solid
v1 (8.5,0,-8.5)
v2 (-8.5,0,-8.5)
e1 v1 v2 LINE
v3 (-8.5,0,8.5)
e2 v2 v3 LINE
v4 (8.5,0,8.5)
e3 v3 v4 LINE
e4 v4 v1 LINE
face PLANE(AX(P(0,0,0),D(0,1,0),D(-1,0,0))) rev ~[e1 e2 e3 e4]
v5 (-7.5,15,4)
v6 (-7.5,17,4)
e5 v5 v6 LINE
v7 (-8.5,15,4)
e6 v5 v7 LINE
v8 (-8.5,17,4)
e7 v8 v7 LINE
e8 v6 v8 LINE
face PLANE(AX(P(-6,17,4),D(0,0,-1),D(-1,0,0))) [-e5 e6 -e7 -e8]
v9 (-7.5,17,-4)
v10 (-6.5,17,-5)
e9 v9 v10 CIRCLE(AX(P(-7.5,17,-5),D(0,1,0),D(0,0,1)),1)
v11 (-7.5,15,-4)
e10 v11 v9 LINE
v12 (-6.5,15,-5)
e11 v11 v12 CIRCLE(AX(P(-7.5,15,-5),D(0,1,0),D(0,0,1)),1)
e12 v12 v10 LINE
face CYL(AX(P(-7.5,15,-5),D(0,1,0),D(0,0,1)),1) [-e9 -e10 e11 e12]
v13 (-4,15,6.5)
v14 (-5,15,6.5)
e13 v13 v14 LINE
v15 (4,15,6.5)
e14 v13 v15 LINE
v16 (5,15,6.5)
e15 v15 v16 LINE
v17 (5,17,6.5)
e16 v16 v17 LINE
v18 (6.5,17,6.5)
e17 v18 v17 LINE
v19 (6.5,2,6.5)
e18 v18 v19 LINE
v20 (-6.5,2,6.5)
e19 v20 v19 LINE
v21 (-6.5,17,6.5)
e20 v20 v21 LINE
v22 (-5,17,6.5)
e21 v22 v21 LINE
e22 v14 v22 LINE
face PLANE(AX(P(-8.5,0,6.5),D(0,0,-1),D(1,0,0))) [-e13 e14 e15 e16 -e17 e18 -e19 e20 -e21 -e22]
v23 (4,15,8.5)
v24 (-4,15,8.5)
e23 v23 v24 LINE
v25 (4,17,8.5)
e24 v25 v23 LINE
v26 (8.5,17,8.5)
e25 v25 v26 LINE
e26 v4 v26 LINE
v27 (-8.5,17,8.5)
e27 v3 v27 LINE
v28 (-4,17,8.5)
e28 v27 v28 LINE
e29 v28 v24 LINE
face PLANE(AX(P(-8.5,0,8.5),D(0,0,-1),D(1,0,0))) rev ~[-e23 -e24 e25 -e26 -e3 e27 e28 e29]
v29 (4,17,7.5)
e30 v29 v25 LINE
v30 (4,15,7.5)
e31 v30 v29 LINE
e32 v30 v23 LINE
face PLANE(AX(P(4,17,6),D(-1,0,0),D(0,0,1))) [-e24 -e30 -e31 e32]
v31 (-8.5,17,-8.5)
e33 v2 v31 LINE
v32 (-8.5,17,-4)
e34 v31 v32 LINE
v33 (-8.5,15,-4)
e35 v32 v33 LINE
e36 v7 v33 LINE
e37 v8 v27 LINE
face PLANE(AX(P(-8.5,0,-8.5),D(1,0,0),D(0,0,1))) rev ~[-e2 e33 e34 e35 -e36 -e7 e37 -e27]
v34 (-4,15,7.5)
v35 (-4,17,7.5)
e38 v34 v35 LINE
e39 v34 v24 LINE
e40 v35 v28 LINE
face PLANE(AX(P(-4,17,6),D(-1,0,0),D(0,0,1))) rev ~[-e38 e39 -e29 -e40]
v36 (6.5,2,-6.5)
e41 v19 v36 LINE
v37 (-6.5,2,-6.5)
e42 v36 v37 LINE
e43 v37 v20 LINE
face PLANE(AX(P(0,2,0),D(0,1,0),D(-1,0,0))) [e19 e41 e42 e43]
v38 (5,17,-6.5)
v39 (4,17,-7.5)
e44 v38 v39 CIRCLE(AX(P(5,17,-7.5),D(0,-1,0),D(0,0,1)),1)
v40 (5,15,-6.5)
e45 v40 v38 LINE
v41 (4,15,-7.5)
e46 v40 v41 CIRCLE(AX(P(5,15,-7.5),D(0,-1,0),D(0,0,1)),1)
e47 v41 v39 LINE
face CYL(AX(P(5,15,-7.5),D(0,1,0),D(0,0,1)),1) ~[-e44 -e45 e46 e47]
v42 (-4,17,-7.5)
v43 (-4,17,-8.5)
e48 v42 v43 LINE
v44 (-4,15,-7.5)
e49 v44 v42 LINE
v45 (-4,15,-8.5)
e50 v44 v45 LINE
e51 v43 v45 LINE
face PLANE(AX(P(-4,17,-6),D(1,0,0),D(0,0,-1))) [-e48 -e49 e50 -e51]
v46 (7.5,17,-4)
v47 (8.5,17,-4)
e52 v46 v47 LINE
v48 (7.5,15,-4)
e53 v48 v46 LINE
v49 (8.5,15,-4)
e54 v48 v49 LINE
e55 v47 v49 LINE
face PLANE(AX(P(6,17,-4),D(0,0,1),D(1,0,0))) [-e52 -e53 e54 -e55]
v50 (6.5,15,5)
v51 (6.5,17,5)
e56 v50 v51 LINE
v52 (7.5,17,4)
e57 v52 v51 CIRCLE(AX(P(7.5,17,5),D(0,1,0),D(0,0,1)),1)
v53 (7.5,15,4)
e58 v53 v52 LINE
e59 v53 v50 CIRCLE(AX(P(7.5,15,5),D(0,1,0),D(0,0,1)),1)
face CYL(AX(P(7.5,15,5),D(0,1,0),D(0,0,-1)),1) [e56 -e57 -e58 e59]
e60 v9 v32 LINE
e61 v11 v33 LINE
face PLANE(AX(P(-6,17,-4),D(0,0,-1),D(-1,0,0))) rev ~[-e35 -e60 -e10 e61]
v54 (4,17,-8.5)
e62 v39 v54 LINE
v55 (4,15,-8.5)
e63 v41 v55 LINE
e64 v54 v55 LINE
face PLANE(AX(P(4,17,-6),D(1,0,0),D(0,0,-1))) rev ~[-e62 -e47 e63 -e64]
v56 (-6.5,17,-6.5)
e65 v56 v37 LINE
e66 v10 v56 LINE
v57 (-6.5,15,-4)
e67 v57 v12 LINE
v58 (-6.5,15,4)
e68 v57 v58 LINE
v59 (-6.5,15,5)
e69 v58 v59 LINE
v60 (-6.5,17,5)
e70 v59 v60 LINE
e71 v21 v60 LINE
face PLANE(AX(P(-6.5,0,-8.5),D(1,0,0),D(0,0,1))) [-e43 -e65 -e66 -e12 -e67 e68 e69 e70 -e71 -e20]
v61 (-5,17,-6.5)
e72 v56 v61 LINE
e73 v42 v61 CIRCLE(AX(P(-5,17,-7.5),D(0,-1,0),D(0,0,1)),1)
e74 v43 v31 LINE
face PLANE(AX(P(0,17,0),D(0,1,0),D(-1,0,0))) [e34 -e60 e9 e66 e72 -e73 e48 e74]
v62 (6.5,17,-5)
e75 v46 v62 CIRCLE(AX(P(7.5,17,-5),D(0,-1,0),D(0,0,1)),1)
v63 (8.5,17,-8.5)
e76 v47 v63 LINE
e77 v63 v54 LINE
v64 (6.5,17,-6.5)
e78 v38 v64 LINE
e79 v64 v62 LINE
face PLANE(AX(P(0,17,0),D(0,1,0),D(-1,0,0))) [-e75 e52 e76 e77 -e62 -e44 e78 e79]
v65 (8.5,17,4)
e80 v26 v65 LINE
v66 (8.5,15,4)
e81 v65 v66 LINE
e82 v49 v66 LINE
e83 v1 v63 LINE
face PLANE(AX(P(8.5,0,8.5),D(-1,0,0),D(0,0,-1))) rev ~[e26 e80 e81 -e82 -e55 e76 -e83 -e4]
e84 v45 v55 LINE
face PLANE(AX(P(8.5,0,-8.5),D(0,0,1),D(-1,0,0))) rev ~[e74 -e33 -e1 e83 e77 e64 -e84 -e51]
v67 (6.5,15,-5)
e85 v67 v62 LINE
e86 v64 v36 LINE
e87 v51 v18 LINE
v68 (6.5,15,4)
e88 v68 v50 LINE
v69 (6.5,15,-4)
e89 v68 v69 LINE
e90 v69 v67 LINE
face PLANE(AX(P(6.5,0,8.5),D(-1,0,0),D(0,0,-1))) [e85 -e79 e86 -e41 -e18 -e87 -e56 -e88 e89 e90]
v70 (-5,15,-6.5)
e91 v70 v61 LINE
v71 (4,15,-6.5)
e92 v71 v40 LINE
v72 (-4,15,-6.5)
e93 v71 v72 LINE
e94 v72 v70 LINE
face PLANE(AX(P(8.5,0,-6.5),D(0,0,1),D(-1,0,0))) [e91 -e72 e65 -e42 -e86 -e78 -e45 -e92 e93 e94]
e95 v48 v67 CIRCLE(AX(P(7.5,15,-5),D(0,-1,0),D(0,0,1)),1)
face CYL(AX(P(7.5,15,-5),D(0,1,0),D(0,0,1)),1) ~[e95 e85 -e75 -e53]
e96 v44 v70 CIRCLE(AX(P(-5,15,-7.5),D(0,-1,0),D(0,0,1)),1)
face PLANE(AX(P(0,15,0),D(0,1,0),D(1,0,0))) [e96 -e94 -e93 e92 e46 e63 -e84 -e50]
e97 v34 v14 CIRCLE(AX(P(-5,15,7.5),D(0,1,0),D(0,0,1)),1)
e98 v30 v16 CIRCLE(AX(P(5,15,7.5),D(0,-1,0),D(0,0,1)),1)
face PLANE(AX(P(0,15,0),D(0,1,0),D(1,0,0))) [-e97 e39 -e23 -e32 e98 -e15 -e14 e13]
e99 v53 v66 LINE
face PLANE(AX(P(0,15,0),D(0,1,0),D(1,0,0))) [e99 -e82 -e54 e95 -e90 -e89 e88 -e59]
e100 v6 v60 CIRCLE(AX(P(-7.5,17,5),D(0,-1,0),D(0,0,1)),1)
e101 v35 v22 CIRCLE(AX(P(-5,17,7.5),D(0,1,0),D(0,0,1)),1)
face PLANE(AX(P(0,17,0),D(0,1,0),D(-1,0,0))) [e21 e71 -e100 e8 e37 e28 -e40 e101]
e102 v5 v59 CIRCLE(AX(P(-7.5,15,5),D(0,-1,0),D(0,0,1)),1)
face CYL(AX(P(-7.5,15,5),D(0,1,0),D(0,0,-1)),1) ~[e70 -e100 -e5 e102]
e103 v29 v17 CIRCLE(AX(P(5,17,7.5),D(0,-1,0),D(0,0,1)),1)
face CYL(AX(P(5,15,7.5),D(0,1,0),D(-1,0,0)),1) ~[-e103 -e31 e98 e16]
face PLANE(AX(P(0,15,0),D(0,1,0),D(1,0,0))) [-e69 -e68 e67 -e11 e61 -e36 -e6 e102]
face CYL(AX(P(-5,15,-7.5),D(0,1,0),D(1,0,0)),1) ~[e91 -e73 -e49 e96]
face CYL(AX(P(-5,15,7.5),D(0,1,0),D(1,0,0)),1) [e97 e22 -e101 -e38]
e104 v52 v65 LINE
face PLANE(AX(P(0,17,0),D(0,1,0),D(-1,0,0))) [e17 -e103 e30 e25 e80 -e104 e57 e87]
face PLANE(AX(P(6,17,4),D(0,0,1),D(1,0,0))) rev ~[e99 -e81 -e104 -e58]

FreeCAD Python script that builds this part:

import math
import FreeCAD as App
import Part
import Sketcher

V = App.Vector


def edges_at(feature, points):
    """Names of the edges that pass closest to the given points."""
    edges = feature.Shape.Edges
    near = lambda p: min(range(len(edges)), key=lambda i: edges[i].distToShape(Part.Vertex(*p))[0])
    return sorted({f"Edge{near(p) + 1}" for p in points})


def faces_at(feature, points):
    """Names of the faces that lie closest to the given points."""
    faces = feature.Shape.Faces
    near = lambda p: min(range(len(faces)), key=lambda i: faces[i].distToShape(Part.Vertex(*p))[0])
    return sorted({f"Face{near(p) + 1}" for p in points})

doc = App.newDocument("Part")
body = doc.addObject("PartDesign::Body", "Body")

# Sketch on XZ plane
sketch1 = body.newObject("Sketcher::SketchObject", "Sketch")
sketch1.AttachmentSupport = (doc.getObject("XZ_Plane"), [""])
sketch1.MapMode = "FlatFace"
sketch1.addGeometry([
    Part.LineSegment(V(-8, -8, 0), V(-8, 8, 0)),
    Part.LineSegment(V(-8, 8, 0), V(8, 8, 0)),
    Part.LineSegment(V(8, 8, 0), V(8, -8, 0)),
    Part.LineSegment(V(8, -8, 0), V(-8, -8, 0)),
], False)
sketch1.addConstraint([
    Sketcher.Constraint("Coincident", 0, 2, 1, 1),
    Sketcher.Constraint("Coincident", 1, 2, 2, 1),
    Sketcher.Constraint("Coincident", 2, 2, 3, 1),
    Sketcher.Constraint("Coincident", 3, 2, 0, 1),
    Sketcher.Constraint("Vertical", 0),
    Sketcher.Constraint("Horizontal", 1),
    Sketcher.Constraint("Vertical", 2),
    Sketcher.Constraint("Horizontal", 3),
    Sketcher.Constraint("Symmetric", 0, 2, 2, 2, -1, 1),
    Sketcher.Constraint("Equal", 3, 0),
    Sketcher.Constraint("DistanceX", 1, 1, 1, 2, 17.0),
])
pad1 = body.newObject("PartDesign::Pad", "Pad")
pad1.Profile = sketch1
pad1.Length = 17
pad1.Reversed = True
doc.recompute()

thickness = body.newObject("PartDesign::Thickness", "Thickness")
thickness.Base = (pad1, faces_at(pad1, [(2.833, 17, 2.833)]))
thickness.Value = 2
thickness.Reversed = True
thickness.Join = "Intersection"

# Sketch on XZ plane
sketch2 = body.newObject("Sketcher::SketchObject", "Sketch001")
sketch2.AttachmentSupport = (doc.getObject("XZ_Plane"), [""])
sketch2.MapMode = "FlatFace"
sketch2.AttachmentOffset = App.Placement(V(0, 0, -17), App.Rotation())
sketch2.addGeometry([
    Part.ArcOfCircle(Part.Circle(V(6, 6, 0), V(0, 0, 1), 2), math.radians(180), math.radians(270)),  # 0
    Part.LineSegment(V(6, 4, 0), V(8.5, 4, 0)),  # 1
    Part.LineSegment(V(8.5, 4, 0), V(8.5, -4, 0)),  # 2
    Part.LineSegment(V(8.5, -4, 0), V(6, -4, 0)),  # 3
    Part.ArcOfCircle(Part.Circle(V(6, -6, 0), V(0, 0, 1), 2), math.radians(90), math.radians(180)),  # 4
    Part.LineSegment(V(4, -6, 0), V(4, -8.5, 0)),  # 5
    Part.LineSegment(V(4, -8.5, 0), V(-4, -8.5, 0)),  # 6
    Part.LineSegment(V(-4, -8.5, 0), V(-4, -6, 0)),  # 7
    Part.ArcOfCircle(Part.Circle(V(-6, -6, 0), V(0, 0, 1), 2), math.radians(0), math.radians(90)),  # 8
    Part.LineSegment(V(-6, -4, 0), V(-8.5, -4, 0)),  # 9
    Part.LineSegment(V(-8.5, -4, 0), V(-8.5, 4, 0)),  # 10
    Part.LineSegment(V(-8.5, 4, 0), V(-6, 4, 0)),  # 11
    Part.ArcOfCircle(Part.Circle(V(-6, 6, 0), V(0, 0, 1), 2), math.radians(-90), math.radians(0)),  # 12
    Part.LineSegment(V(-4, 6, 0), V(-4, 8.5, 0)),  # 13
    Part.LineSegment(V(-4, 8.5, 0), V(4, 8.5, 0)),  # 14
    Part.LineSegment(V(4, 8.5, 0), V(4, 6, 0)),  # 15
], False)
sketch2.addConstraint([
    Sketcher.Constraint("Tangent", 0, 2, 1, 1),
    Sketcher.Constraint("Coincident", 1, 2, 2, 1),
    Sketcher.Constraint("Coincident", 2, 2, 3, 1),
    Sketcher.Constraint("Tangent", 3, 2, 4, 1),
    Sketcher.Constraint("Tangent", 4, 2, 5, 1),
    Sketcher.Constraint("Coincident", 5, 2, 6, 1),
    Sketcher.Constraint("Coincident", 6, 2, 7, 1),
    Sketcher.Constraint("Tangent", 7, 2, 8, 1),
    Sketcher.Constraint("Tangent", 8, 2, 9, 1),
    Sketcher.Constraint("Coincident", 9, 2, 10, 1),
    Sketcher.Constraint("Coincident", 10, 2, 11, 1),
    Sketcher.Constraint("Tangent", 11, 2, 12, 1),
    Sketcher.Constraint("Tangent", 12, 2, 13, 1),
    Sketcher.Constraint("Coincident", 13, 2, 14, 1),
    Sketcher.Constraint("Coincident", 14, 2, 15, 1),
    Sketcher.Constraint("Tangent", 15, 2, 0, 1),
    Sketcher.Constraint("Horizontal", 1),
    Sketcher.Constraint("Vertical", 2),
    Sketcher.Constraint("Horizontal", 3),
    Sketcher.Constraint("Vertical", 5),
    Sketcher.Constraint("Horizontal", 6),
    Sketcher.Constraint("Vertical", 7),
    Sketcher.Constraint("Horizontal", 9),
    Sketcher.Constraint("Vertical", 10),
    Sketcher.Constraint("Horizontal", 11),
    Sketcher.Constraint("Vertical", 13),
    Sketcher.Constraint("Horizontal", 14),
    Sketcher.Constraint("Vertical", 15),
    Sketcher.Constraint("Equal", 0, 4),
    Sketcher.Constraint("Equal", 4, 8),
    Sketcher.Constraint("Equal", 8, 12),
    Sketcher.Constraint("Symmetric", 0, 3, 8, 3, -1, 1),
    Sketcher.Constraint("Symmetric", 4, 3, 12, 3, -1, 1),
    Sketcher.Constraint("Symmetric", 4, 3, 8, 3, -2),
    Sketcher.Constraint("Equal", 3, 9),
    Sketcher.Constraint("Equal", 14, 2),
    Sketcher.Constraint("Equal", 11, 5),
    Sketcher.Constraint("Equal", 7, 13),
    Sketcher.Constraint("Radius", 0, 2.0),
    Sketcher.Constraint("DistanceY", -1, 1, 0, 2, 4.0),
    Sketcher.Constraint("DistanceX", 1, 1, 1, 2, 2.5),
])
pocket1 = body.newObject("PartDesign::Pocket", "Pocket")
pocket1.Profile = sketch2
pocket1.Length = 2
pocket1.Reversed = True
doc.recompute()

fillet = body.newObject("PartDesign::Fillet", "Fillet")
fillet.Base = (pocket1, edges_at(pocket1, [
    (-6.5, 16, 4),
    (-4, 16, 6.5),
    (-6.5, 16, -4),
    (-4, 16, -6.5),
    (4, 16, -6.5),
    (6.5, 16, -4),
    (6.5, 16, 4),
    (4, 16, 6.5),
]))
fillet.Radius = 1

doc.recompute()
